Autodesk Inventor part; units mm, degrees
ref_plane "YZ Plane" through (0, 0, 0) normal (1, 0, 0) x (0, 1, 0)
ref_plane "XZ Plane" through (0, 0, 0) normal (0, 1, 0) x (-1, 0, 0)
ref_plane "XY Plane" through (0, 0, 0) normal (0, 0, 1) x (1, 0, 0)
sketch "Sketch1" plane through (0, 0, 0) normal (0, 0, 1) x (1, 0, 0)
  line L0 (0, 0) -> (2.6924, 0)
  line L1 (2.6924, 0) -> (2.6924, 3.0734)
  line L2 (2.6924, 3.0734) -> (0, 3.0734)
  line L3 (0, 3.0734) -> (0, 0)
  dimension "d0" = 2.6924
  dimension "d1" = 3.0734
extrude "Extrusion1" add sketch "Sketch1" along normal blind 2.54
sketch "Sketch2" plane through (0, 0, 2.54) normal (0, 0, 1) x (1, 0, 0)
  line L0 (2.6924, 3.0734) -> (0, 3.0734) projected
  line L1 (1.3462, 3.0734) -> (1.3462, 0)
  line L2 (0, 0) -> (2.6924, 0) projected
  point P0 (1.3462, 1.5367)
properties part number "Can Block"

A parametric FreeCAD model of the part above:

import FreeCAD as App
import Part
import Sketcher

V = App.Vector
Q = App.Units.Quantity


def add_polygon(sketch, points):
    """Adds a closed chain of lines whose ends are joined by coincident constraints."""
    first, n = sketch.GeometryCount, len(points)
    for a, b in zip(points, points[1:] + points[:1]):
        sketch.addGeometry(Part.LineSegment(App.Vector(*a, 0), App.Vector(*b, 0)), False)
    for i in range(n):
        sketch.addConstraint(Sketcher.Constraint("Coincident", first + i, 2, first + (i + 1) % n, 1))

doc = App.newDocument("Part")
body = doc.addObject("PartDesign::Body", "Body")

# Sketch on XY plane
sketch1 = body.newObject("Sketcher::SketchObject", "Sketch")
sketch1.AttachmentSupport = (doc.getObject("XY_Plane"), [""])
sketch1.MapMode = "FlatFace"
add_polygon(sketch1, [(0, 3.0734), (0, 0), (2.6924, 0), (2.6924, 3.0734)])  # lines 0-3
sketch1.addConstraint(Sketcher.Constraint("Vertical", 0))
sketch1.addConstraint(Sketcher.Constraint("Horizontal", 1))
sketch1.addConstraint(Sketcher.Constraint("Vertical", 2))
sketch1.addConstraint(Sketcher.Constraint("Horizontal", 3))
sketch1.addConstraint(Sketcher.Constraint("Coincident", 0, 2, -1, 1))
sketch1.addConstraint(Sketcher.Constraint("DistanceX", 1, 1, 1, 2, Q("0.106 in")))
sketch1.addConstraint(Sketcher.Constraint("DistanceY", 0, 2, 0, 1, Q("0.121 in")))
pad1 = body.newObject("PartDesign::Pad", "Pad")
pad1.Profile = sketch1
pad1.Length = Q("0.1 in")

doc.recompute()
